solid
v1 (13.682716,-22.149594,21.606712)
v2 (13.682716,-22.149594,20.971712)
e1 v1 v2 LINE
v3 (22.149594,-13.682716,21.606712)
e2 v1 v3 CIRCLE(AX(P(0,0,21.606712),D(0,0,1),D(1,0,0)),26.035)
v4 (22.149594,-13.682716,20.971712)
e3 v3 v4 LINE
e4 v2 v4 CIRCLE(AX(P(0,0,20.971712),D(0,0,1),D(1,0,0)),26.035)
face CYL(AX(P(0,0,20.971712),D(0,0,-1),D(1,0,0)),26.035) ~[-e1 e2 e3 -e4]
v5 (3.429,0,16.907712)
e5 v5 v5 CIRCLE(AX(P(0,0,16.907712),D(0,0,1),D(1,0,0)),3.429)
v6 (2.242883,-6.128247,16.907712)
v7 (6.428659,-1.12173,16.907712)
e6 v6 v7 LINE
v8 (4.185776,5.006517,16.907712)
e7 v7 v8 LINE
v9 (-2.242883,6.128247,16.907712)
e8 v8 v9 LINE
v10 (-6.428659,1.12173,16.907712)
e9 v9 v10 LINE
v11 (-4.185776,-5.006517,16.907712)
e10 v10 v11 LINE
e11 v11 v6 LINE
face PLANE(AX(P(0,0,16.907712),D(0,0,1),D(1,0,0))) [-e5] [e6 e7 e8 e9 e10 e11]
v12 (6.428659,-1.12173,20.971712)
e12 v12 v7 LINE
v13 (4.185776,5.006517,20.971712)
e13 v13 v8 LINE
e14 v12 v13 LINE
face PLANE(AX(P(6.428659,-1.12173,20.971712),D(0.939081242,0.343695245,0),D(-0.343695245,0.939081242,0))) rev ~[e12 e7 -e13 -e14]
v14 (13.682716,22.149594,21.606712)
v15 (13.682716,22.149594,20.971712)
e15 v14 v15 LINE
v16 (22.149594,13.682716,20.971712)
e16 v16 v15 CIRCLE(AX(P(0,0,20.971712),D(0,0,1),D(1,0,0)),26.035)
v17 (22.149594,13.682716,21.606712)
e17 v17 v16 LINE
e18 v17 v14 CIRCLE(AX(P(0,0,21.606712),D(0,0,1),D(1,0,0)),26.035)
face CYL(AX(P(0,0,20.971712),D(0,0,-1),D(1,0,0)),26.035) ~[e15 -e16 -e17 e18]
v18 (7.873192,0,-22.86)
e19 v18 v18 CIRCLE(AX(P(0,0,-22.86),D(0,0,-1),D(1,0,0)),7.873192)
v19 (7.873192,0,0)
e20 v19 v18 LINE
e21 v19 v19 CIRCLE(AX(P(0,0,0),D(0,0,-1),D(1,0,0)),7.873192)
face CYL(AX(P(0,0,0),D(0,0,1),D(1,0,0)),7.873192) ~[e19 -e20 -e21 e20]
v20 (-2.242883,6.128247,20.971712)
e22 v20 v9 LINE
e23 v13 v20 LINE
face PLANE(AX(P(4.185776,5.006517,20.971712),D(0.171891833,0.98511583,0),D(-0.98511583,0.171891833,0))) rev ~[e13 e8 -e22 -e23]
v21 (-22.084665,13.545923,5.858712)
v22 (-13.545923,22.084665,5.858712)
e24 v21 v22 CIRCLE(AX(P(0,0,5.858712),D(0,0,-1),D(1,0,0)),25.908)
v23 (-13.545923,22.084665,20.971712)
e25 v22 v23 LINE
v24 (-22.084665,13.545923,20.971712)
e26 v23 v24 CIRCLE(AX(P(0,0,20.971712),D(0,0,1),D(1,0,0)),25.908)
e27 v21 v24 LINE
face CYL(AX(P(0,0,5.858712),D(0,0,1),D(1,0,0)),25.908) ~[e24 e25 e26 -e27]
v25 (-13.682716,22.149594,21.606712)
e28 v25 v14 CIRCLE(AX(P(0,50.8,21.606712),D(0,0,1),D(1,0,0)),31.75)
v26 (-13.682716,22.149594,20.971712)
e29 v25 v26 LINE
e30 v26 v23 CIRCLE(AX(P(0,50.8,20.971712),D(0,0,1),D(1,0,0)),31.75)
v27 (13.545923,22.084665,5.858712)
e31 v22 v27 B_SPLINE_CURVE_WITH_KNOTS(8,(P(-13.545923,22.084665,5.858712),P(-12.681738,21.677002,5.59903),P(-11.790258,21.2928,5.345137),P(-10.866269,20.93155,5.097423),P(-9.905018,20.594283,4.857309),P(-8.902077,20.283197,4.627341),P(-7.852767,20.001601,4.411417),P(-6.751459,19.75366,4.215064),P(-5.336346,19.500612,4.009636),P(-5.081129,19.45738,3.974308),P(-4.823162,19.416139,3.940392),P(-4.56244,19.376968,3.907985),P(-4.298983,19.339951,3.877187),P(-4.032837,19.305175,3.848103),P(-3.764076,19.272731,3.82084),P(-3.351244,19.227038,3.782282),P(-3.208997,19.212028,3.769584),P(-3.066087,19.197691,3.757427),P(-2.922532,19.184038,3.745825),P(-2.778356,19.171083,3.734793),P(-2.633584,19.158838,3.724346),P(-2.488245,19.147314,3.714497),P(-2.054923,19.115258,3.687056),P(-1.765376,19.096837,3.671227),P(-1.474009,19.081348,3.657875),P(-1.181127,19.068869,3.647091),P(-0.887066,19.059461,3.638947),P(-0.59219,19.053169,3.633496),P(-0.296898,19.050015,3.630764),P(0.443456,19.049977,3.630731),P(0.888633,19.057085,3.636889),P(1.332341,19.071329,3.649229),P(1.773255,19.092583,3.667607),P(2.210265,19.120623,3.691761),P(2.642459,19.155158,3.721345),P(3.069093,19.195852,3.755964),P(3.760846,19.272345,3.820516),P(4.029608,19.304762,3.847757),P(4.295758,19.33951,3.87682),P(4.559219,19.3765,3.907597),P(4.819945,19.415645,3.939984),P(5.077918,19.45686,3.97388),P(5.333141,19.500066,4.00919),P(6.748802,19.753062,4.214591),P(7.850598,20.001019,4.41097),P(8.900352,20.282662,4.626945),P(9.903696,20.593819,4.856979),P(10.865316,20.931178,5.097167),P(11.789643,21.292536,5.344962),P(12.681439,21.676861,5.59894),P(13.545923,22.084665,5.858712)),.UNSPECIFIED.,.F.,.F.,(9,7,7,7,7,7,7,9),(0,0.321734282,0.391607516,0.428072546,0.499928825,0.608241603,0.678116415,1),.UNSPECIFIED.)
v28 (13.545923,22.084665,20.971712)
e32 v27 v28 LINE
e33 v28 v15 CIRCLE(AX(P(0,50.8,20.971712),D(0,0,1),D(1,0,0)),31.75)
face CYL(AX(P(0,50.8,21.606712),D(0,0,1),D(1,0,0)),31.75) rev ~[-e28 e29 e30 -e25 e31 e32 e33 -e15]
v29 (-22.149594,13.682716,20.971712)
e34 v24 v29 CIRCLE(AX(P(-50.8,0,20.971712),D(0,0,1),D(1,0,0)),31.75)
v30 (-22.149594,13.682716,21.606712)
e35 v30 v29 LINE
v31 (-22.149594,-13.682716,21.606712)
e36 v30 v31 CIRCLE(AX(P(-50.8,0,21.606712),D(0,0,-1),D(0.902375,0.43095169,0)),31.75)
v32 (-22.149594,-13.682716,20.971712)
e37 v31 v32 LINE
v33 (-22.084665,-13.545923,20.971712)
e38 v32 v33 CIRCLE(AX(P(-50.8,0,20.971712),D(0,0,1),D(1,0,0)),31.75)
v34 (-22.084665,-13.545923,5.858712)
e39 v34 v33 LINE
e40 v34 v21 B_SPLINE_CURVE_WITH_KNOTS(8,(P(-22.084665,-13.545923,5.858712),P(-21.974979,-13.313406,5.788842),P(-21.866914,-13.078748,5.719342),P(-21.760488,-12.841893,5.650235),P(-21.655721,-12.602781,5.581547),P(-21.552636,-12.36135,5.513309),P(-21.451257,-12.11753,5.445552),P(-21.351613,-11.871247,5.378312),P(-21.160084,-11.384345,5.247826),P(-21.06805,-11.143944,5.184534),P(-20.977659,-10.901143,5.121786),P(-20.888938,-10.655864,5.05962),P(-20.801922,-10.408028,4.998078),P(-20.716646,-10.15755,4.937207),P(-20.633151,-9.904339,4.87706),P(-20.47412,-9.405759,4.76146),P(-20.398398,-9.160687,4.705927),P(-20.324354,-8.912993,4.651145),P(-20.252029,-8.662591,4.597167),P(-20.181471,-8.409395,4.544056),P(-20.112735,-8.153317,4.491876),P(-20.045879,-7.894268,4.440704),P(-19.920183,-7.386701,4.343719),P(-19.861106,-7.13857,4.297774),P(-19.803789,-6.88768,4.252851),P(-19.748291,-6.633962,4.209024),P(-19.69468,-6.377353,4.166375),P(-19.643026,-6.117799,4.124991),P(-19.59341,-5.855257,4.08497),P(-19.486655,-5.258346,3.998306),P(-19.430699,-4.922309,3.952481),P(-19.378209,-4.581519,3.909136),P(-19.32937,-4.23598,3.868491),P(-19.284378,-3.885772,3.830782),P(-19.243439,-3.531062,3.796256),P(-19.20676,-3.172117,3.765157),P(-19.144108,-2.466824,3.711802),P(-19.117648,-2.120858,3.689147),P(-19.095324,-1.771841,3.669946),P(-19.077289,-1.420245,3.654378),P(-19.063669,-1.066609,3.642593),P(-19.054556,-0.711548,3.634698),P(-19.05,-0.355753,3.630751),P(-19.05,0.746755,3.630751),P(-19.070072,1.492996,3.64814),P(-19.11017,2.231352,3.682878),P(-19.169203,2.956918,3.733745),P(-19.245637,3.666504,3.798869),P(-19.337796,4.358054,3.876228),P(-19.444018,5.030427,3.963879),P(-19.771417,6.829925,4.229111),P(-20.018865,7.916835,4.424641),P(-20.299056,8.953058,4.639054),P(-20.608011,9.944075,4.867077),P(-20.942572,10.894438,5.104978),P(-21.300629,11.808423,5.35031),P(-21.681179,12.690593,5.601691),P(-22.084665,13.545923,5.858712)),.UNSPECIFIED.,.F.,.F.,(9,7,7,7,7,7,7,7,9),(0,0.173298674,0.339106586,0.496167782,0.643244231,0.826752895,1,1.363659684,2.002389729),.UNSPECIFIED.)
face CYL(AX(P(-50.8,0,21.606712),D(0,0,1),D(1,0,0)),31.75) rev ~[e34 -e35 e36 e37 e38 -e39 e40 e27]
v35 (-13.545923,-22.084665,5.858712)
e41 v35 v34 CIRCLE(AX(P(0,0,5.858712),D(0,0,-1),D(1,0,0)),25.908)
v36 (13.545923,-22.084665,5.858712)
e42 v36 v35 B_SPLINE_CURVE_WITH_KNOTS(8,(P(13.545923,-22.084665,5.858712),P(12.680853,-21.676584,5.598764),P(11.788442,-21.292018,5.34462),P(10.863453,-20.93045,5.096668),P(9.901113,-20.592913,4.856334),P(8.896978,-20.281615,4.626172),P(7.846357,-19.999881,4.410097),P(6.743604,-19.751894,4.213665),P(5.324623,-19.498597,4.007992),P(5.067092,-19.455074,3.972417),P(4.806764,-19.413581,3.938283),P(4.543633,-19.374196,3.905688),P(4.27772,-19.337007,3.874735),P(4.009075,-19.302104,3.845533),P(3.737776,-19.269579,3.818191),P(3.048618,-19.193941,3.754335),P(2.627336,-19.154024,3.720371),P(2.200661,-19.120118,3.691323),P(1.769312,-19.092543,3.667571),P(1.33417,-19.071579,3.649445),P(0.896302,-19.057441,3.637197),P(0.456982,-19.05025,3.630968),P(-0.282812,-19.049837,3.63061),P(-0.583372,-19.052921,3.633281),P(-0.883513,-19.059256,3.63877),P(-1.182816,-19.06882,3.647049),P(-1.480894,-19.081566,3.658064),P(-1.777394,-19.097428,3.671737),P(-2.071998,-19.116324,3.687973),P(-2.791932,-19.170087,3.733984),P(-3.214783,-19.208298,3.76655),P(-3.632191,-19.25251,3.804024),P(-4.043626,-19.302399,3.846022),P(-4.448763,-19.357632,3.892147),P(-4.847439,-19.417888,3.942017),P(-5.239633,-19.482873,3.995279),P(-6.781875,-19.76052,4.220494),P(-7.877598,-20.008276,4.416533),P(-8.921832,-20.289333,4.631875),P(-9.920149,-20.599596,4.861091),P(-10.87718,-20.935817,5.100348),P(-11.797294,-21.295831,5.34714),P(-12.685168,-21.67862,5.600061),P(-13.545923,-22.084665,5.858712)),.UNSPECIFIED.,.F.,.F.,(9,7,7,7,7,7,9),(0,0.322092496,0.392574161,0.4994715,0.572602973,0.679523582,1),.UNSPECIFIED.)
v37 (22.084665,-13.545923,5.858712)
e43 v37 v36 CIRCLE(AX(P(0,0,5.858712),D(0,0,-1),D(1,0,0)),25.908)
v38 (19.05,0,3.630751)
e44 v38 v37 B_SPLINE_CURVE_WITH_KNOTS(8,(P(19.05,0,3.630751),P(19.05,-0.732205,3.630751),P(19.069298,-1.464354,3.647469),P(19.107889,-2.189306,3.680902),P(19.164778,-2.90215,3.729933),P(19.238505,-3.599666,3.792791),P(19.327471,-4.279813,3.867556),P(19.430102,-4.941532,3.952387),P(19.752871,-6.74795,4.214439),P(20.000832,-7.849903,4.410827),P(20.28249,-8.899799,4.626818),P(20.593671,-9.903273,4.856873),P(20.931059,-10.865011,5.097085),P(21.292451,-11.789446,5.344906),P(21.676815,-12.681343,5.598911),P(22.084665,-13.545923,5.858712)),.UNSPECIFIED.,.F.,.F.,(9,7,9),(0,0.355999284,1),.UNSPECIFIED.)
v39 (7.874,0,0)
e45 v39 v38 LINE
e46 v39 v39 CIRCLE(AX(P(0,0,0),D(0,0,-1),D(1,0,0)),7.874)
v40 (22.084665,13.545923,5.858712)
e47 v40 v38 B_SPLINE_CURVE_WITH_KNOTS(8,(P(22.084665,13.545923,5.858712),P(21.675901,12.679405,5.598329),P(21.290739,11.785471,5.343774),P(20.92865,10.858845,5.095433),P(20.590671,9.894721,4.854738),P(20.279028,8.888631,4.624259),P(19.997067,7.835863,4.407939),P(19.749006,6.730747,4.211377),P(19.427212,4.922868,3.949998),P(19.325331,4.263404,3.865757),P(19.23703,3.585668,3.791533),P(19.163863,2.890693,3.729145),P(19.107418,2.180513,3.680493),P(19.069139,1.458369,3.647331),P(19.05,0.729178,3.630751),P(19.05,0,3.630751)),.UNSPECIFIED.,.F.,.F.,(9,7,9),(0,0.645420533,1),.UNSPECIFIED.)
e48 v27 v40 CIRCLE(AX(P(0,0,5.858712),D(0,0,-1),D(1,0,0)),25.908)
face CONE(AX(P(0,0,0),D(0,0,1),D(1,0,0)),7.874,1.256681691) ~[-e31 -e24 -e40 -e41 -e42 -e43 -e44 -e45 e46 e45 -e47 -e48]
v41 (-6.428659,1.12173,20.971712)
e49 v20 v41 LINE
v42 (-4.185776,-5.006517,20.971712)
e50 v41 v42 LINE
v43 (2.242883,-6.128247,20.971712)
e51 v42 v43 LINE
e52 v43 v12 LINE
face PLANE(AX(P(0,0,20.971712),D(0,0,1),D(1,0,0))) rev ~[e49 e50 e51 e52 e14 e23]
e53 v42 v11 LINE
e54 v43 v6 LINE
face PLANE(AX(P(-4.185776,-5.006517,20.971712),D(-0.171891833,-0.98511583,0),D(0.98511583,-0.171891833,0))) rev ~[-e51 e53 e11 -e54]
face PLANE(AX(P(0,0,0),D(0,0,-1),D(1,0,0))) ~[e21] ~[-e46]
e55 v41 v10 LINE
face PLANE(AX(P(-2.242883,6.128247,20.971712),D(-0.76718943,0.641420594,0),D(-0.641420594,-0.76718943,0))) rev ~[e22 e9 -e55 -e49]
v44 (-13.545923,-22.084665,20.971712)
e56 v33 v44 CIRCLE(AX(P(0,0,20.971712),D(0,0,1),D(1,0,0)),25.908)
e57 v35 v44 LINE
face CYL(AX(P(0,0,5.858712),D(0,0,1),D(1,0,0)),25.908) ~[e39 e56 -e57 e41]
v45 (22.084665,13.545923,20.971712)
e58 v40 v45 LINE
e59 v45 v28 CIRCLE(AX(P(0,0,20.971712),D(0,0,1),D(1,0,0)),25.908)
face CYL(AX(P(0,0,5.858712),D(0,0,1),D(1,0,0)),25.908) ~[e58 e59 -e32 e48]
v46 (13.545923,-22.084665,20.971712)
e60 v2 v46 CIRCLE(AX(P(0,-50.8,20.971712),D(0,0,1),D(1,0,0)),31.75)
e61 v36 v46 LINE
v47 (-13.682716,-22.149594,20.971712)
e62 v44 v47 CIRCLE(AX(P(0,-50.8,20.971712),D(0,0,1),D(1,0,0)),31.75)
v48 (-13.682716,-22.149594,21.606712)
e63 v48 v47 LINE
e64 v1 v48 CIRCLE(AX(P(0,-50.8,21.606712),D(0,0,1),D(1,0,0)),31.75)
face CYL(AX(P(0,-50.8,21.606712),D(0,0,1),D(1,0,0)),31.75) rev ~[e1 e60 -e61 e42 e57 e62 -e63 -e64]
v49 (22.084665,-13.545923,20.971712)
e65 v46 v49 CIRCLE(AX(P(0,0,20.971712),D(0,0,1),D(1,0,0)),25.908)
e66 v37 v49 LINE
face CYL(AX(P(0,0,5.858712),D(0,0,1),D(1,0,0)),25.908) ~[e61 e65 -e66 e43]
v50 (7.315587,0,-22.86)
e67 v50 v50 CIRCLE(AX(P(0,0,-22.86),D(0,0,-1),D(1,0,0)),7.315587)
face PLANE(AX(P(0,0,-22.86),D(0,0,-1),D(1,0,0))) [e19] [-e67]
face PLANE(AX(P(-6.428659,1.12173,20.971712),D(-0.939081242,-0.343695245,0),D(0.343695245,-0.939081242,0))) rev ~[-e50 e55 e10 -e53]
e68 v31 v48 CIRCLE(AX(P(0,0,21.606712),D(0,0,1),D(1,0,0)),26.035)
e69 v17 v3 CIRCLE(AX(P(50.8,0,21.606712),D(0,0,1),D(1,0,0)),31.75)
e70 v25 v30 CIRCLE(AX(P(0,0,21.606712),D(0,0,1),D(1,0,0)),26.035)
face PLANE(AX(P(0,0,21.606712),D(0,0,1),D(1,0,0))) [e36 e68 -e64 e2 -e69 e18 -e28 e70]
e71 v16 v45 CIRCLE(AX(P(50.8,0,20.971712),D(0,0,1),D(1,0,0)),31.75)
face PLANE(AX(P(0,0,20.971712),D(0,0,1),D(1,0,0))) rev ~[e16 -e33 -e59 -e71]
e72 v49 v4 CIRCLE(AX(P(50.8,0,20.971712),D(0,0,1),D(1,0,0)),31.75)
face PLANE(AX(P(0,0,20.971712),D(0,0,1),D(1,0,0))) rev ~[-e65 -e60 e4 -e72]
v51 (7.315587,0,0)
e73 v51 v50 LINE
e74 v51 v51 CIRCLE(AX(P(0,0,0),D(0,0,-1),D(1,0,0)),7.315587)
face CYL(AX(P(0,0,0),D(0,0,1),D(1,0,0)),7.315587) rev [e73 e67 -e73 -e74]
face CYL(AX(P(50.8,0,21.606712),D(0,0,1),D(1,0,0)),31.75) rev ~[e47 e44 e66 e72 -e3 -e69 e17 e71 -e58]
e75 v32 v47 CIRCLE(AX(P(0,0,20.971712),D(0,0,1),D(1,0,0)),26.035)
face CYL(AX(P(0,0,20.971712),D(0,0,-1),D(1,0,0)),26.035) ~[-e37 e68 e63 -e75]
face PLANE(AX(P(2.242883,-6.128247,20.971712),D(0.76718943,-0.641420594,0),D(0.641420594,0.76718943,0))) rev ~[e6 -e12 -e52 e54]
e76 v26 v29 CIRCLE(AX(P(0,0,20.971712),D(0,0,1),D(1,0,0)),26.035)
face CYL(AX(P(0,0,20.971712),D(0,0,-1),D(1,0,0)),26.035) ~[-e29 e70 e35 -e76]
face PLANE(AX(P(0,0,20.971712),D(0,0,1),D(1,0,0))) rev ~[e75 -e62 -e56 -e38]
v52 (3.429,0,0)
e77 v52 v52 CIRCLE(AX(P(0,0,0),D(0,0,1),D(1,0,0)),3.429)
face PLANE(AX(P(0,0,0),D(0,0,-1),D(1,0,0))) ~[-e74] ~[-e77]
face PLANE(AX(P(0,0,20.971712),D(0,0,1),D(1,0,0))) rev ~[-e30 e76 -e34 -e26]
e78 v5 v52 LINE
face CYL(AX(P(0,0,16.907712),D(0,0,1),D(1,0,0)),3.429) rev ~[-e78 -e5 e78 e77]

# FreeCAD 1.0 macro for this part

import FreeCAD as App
import Part
import Sketcher
Q = App.Units.Quantity


def add_polygon(sketch, points):
    """Adds a closed chain of lines whose ends are joined by coincident constraints."""
    first, n = sketch.GeometryCount, len(points)
    for a, b in zip(points, points[1:] + points[:1]):
        sketch.addGeometry(Part.LineSegment(App.Vector(*a, 0), App.Vector(*b, 0)), False)
    for i in range(n):
        sketch.addConstraint(Sketcher.Constraint("Coincident", first + i, 2, first + (i + 1) % n, 1))

doc = App.newDocument("Part")
body = doc.addObject("PartDesign::Body", "Body")

# Sketch on XZ plane
sketch1 = doc.addObject("Sketcher::SketchObject", "Sketch")
body.addObject(sketch1)
sketch1.AttachmentSupport = (doc.XZ_Plane, [""])
sketch1.MapMode = "FlatFace"
add_polygon(sketch1, [(0, 21.606712), (0, 0), (7.874, 0), (25.908, 5.858712), (25.908, 21.606712)])  # lines 0-4
sketch1.addConstraint([
    Sketcher.Constraint("Vertical", 0),
    Sketcher.Constraint("Horizontal", 1),
    Sketcher.Constraint("Vertical", 3),
    Sketcher.Constraint("Horizontal", 4),
    Sketcher.Constraint("Coincident", 0, 2, -1, 1),
    Sketcher.Constraint("DistanceX", 1, 1, 1, 2, Q("0.31 in")),
    Sketcher.Constraint("DistanceX", 4, 2, 4, 1, Q("1.02 in")),
    Sketcher.Constraint("DistanceY", 3, 1, 3, 2, Q("0.62 in")),
    Sketcher.Constraint("DistanceY", 0, 2, 0, 1, Q("21.606712 mm")),
])
revolution = doc.addObject("PartDesign::Revolution", "Revolution")
body.addObject(revolution)
revolution.Profile = sketch1
revolution.ReferenceAxis = (sketch1, ["V_Axis"])
revolution.Angle = 360

# Sketch on XY plane
sketch2 = doc.addObject("Sketcher::SketchObject", "Sketch001")
body.addObject(sketch2)
sketch2.AttachmentSupport = (doc.XY_Plane, [""])
sketch2.MapMode = "FlatFace"
sketch2.AttachmentOffset = App.Placement(App.Vector(0, 0, 21.606712), App.Rotation())
sketch2.addGeometry(Part.Circle(App.Vector(0, 0, 0), App.Vector(0, 0, 1), 26.134352), False)
sketch2.addConstraint([
    Sketcher.Constraint("Coincident", 0, 3, -1, 1),
    Sketcher.Constraint("Diameter", 0, Q("52.268704 mm")),
])
pocket1 = doc.addObject("PartDesign::Pocket", "Pocket")
body.addObject(pocket1)
pocket1.Profile = sketch2
pocket1.Length = Q("0.025 in")

# Sketch on XY plane
sketch3 = doc.addObject("Sketcher::SketchObject", "Sketch002")
body.addObject(sketch3)
sketch3.AttachmentSupport = (doc.XY_Plane, [""])
sketch3.MapMode = "FlatFace"
sketch3.AttachmentOffset = App.Placement(App.Vector(0, 0, 20.971712), App.Rotation())
add_polygon(sketch3, [(2.242883, -6.128247), (6.428659, -1.12173), (4.185776, 5.006517), (-2.242883, 6.128247), (-6.428659, 1.12173), (-4.185776, -5.006517)])  # lines 0-5
sketch3.addConstraint([
    Sketcher.Constraint("Symmetric", 0, 2, 3, 2, -1, 1),
    Sketcher.Constraint("Symmetric", 1, 2, 4, 2, -1, 1),
    Sketcher.Constraint("Symmetric", 2, 2, 5, 2, -1, 1),
    Sketcher.Constraint("Equal", 0, 1),
    Sketcher.Constraint("Equal", 1, 2),
    Sketcher.Constraint("Distance", 0, Q("6.52579 mm")),
    Sketcher.Constraint("DistanceX", -1, 1, 0, 2, Q("6.428659 mm")),
    Sketcher.Constraint("DistanceY", 0, 2, -1, 1, Q("1.12173 mm")),
    Sketcher.Constraint("DistanceX", 2, 2, 1, 2, Q("6.428659 mm")),
])
pocket2 = doc.addObject("PartDesign::Pocket", "Pocket001")
body.addObject(pocket2)
pocket2.Profile = sketch3
pocket2.Length = Q("0.16 in")

# Sketch on XY plane
sketch4 = doc.addObject("Sketcher::SketchObject", "Sketch003")
body.addObject(sketch4)
sketch4.AttachmentSupport = (doc.XY_Plane, [""])
sketch4.MapMode = "FlatFace"
sketch4.AttachmentOffset = App.Placement(App.Vector(0, 0, 16.907712), App.Rotation())
sketch4.addGeometry(Part.Circle(App.Vector(0, 0, 0), App.Vector(0, 0, 1), 3.429), False)
sketch4.addConstraint([
    Sketcher.Constraint("Coincident", 0, 3, -1, 1),
    Sketcher.Constraint("Diameter", 0, Q("0.27 in")),
])
pocket3 = doc.addObject("PartDesign::Pocket", "Pocket002")
body.addObject(pocket3)
pocket3.Profile = sketch4
pocket3.Length = Q("1 in")

# Sketch on XY plane
sketch5 = doc.addObject("Sketcher::SketchObject", "Sketch004")
body.addObject(sketch5)
sketch5.AttachmentSupport = (doc.XY_Plane, [""])
sketch5.MapMode = "FlatFace"
sketch5.AttachmentOffset = App.Placement(App.Vector(0, 0, 20.971712), App.Rotation())
sketch5.addGeometry(Part.Circle(App.Vector(0, 0, 0), App.Vector(0, 0, 1), 26.035), False)
sketch5.addConstraint([
    Sketcher.Constraint("Coincident", 0, 3, -1, 1),
    Sketcher.Constraint("Diameter", 0, Q("2.05 in")),
])
pad1 = doc.addObject("PartDesign::Pad", "Pad")
body.addObject(pad1)
pad1.Profile = sketch5
pad1.Length = Q("0.025 in")

# Sketch on XY plane
sketch6 = doc.addObject("Sketcher::SketchObject", "Sketch005")
body.addObject(sketch6)
sketch6.AttachmentSupport = (doc.XY_Plane, [""])
sketch6.MapMode = "FlatFace"
sketch6.addGeometry([
    Part.Circle(App.Vector(0, 0, 0), App.Vector(0, 0, 1), 7.873192),
    Part.Circle(App.Vector(0, 0, 0), App.Vector(0, 0, 1), 7.315587),
], False)
sketch6.addConstraint([
    Sketcher.Constraint("Coincident", 0, 3, -1, 1),
    Sketcher.Constraint("Coincident", 1, 3, -1, 1),
    Sketcher.Constraint("Diameter", 0, Q("15.746384 mm")),
    Sketcher.Constraint("Diameter", 1, Q("14.631174 mm")),
])
pad2 = doc.addObject("PartDesign::Pad", "Pad001")
body.addObject(pad2)
pad2.Profile = sketch6
pad2.Length = Q("0.9 in")
pad2.Reversed = True

# Sketch on XY plane
sketch7 = doc.addObject("Sketcher::SketchObject", "Sketch006")
body.addObject(sketch7)
sketch7.AttachmentSupport = (doc.XY_Plane, [""])
sketch7.MapMode = "FlatFace"
sketch7.AttachmentOffset = App.Placement(App.Vector(0, 0, 21.606712), App.Rotation())
sketch7.addGeometry([
    Part.Circle(App.Vector(-50.8, 0, 0), App.Vector(0, 0, 1), 31.75),
    Part.Circle(App.Vector(0, 50.8, 0), App.Vector(0, 0, 1), 31.75),
    Part.Circle(App.Vector(50.8, 0, 0), App.Vector(0, 0, 1), 31.75),
    Part.Circle(App.Vector(0, -50.8, 0), App.Vector(0, 0, 1), 31.75),
], False)
sketch7.addConstraint([
    Sketcher.Constraint("Equal", 0, 1),
    Sketcher.Constraint("Equal", 1, 2),
    Sketcher.Constraint("Equal", 2, 3),
    Sketcher.Constraint("Symmetric", 0, 3, 2, 3, -1, 1),
    Sketcher.Constraint("Symmetric", 1, 3, 3, 3, -1, 1),
    Sketcher.Constraint("PointOnObject", 0, 3, -1),
    Sketcher.Constraint("PointOnObject", 1, 3, -2),
    Sketcher.Constraint("Diameter", 0, Q("2.5 in")),
    Sketcher.Constraint("DistanceX", 0, 3, -1, 1, Q("2 in")),
    Sketcher.Constraint("DistanceY", -1, 1, 1, 3, Q("2 in")),
])
pocket4 = doc.addObject("PartDesign::Pocket", "Pocket003")
body.addObject(pocket4)
pocket4.Profile = sketch7
pocket4.Length = Q("1 in")

doc.recompute()
